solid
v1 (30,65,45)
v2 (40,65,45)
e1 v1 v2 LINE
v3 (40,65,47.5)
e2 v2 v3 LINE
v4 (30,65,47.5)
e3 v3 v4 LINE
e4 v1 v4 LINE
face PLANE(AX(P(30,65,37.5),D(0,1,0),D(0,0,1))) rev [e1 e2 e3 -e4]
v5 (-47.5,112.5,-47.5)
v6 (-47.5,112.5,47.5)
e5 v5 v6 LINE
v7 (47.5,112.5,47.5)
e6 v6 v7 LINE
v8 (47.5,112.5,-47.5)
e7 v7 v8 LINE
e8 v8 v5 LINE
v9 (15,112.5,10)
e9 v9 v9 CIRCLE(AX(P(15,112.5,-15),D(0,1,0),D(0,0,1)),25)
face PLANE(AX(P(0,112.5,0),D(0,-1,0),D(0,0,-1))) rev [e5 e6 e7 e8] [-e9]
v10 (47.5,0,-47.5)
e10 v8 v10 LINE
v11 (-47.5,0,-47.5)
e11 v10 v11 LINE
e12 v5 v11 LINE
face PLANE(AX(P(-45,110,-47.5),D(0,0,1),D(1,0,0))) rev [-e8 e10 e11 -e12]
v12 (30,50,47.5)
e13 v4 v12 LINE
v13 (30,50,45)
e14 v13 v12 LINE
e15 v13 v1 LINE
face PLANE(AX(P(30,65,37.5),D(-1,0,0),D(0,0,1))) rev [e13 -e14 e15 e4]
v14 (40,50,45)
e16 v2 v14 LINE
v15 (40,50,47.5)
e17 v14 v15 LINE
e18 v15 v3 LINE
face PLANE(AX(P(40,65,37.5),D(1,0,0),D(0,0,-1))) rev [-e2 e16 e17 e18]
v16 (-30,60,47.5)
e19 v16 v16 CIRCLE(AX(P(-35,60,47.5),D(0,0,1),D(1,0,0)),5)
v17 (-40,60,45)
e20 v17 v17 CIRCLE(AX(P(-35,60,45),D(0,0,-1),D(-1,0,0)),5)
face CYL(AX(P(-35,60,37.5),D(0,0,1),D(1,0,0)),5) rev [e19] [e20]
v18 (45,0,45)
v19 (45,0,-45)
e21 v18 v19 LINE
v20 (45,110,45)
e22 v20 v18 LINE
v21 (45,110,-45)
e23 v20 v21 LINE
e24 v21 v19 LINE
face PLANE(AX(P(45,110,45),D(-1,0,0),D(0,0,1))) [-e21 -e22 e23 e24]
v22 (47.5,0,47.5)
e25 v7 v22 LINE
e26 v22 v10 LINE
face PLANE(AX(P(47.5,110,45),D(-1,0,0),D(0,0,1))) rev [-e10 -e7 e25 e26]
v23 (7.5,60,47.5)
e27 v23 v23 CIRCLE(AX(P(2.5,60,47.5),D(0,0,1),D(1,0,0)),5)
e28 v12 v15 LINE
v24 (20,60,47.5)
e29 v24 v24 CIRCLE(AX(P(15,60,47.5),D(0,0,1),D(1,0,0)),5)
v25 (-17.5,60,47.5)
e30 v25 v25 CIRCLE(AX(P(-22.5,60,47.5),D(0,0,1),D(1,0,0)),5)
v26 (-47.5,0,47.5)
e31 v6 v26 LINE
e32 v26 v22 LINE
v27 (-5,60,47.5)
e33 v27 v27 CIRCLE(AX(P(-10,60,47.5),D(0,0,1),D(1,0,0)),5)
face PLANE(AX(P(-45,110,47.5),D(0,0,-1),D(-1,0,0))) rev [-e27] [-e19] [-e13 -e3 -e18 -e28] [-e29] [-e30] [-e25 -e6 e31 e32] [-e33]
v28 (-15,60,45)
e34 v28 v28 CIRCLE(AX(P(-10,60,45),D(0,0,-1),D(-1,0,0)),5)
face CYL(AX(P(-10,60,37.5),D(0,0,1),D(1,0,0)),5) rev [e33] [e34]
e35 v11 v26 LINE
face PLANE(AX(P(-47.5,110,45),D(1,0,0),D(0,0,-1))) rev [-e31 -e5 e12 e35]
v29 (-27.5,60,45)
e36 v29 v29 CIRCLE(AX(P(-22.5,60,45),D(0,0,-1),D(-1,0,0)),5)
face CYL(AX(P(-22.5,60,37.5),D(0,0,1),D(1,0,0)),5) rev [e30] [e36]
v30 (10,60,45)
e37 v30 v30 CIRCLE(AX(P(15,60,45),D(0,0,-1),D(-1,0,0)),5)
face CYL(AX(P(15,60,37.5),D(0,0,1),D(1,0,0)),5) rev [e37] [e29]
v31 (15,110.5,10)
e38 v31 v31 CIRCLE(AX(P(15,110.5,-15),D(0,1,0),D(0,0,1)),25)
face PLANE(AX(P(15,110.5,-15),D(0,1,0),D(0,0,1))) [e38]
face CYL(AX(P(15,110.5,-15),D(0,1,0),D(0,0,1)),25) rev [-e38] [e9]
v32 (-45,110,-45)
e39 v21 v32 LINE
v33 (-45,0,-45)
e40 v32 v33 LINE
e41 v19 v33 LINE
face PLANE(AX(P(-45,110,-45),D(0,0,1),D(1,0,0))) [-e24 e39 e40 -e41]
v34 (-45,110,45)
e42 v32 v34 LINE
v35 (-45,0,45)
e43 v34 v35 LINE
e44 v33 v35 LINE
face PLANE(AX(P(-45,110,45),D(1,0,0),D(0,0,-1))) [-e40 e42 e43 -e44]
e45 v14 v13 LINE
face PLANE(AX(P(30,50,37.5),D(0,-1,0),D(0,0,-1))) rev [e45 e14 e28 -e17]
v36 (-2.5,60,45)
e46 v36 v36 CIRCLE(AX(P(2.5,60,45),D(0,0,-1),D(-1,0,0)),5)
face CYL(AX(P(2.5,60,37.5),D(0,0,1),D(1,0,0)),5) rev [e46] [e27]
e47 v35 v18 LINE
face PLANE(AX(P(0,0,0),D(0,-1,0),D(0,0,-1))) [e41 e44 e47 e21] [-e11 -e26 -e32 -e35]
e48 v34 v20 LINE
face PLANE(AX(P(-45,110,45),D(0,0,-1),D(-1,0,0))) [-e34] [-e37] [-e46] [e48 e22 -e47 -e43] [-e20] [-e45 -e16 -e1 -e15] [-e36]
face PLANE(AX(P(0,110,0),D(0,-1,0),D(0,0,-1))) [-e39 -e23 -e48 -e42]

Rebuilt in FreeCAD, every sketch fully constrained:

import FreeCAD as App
import Part
import Sketcher

V = App.Vector
Q = App.Units.Quantity


def faces_at(feature, points):
    """Names of the faces that lie closest to the given points."""
    faces = feature.Shape.Faces
    near = lambda p: min(range(len(faces)), key=lambda i: faces[i].distToShape(Part.Vertex(*p))[0])
    return sorted({f"Face{near(p) + 1}" for p in points})

doc = App.newDocument("Part")
body = doc.addObject("PartDesign::Body", "Body")

sketch1 = doc.addObject("Sketcher::SketchObject", "Sketch")
body.addObject(sketch1)
sketch1.AttachmentSupport = (doc.XZ_Plane, [""])
sketch1.MapMode = "FlatFace"
sketch1.addGeometry([
    Part.LineSegment(V(-45, -45, 0), V(-45, 45, 0)),
    Part.LineSegment(V(-45, 45, 0), V(45, 45, 0)),
    Part.LineSegment(V(45, 45, 0), V(45, -45, 0)),
    Part.LineSegment(V(45, -45, 0), V(-45, -45, 0)),
], False)
sketch1.addConstraint([
    Sketcher.Constraint("Coincident", 0, 2, 1, 1),
    Sketcher.Constraint("Coincident", 1, 2, 2, 1),
    Sketcher.Constraint("Coincident", 2, 2, 3, 1),
    Sketcher.Constraint("Coincident", 3, 2, 0, 1),
    Sketcher.Constraint("Vertical", 0),
    Sketcher.Constraint("Horizontal", 1),
    Sketcher.Constraint("Vertical", 2),
    Sketcher.Constraint("Horizontal", 3),
    Sketcher.Constraint("Symmetric", 0, 2, 2, 2, -1, 1),
    Sketcher.Constraint("Equal", 3, 0),
    Sketcher.Constraint("DistanceX", 1, 1, 1, 2, Q("90 mm")),
])
pad1 = doc.addObject("PartDesign::Pad", "Pad")
body.addObject(pad1)
pad1.Profile = sketch1
pad1.Length = 110
pad1.Reversed = True
doc.recompute()

thickness = doc.addObject("PartDesign::Thickness", "Thickness")
body.addObject(thickness)
thickness.Base = (pad1, faces_at(pad1, [(0, 0, 0)]))
thickness.Value = 2.5
thickness.Reversed = False
thickness.Join = "Intersection"

sketch2 = doc.addObject("Sketcher::SketchObject", "Sketch001")
body.addObject(sketch2)
sketch2.AttachmentSupport = (doc.XY_Plane, [""])
sketch2.MapMode = "FlatFace"
sketch2.AttachmentOffset = App.Placement(V(0, 0, 47.5), App.Rotation())
sketch2.addGeometry([
    Part.Circle(V(-35, 60, 0), V(0, 0, 1), 5),
    Part.Circle(V(-22.5, 60, 0), V(0, 0, 1), 5),
    Part.Circle(V(-10, 60, 0), V(0, 0, 1), 5),
    Part.Circle(V(2.5, 60, 0), V(0, 0, 1), 5),
    Part.Circle(V(15, 60, 0), V(0, 0, 1), 5),
    Part.LineSegment(V(30, 65, 0), V(30, 50, 0)),
    Part.LineSegment(V(30, 50, 0), V(40, 50, 0)),
    Part.LineSegment(V(40, 50, 0), V(40, 65, 0)),
    Part.LineSegment(V(40, 65, 0), V(30, 65, 0)),
], False)
sketch2.addConstraint([
    Sketcher.Constraint("Coincident", 5, 2, 6, 1),
    Sketcher.Constraint("Coincident", 6, 2, 7, 1),
    Sketcher.Constraint("Coincident", 7, 2, 8, 1),
    Sketcher.Constraint("Coincident", 8, 2, 5, 1),
    Sketcher.Constraint("Vertical", 5),
    Sketcher.Constraint("Horizontal", 6),
    Sketcher.Constraint("Vertical", 7),
    Sketcher.Constraint("Horizontal", 8),
    Sketcher.Constraint("Equal", 0, 1),
    Sketcher.Constraint("Equal", 1, 2),
    Sketcher.Constraint("Equal", 2, 3),
    Sketcher.Constraint("Equal", 3, 4),
    Sketcher.Constraint("Horizontal", 0, 3, 1, 3),
    Sketcher.Constraint("Horizontal", 1, 3, 2, 3),
    Sketcher.Constraint("Horizontal", 2, 3, 3, 3),
    Sketcher.Constraint("Horizontal", 3, 3, 4, 3),
    Sketcher.Constraint("Diameter", 0, Q("10 mm")),
    Sketcher.Constraint("DistanceX", 6, 1, 6, 2, Q("10 mm")),
    Sketcher.Constraint("DistanceY", 5, 2, 5, 1, Q("15 mm")),
    Sketcher.Constraint("DistanceX", 0, 3, -1, 1, Q("35 mm")),
    Sketcher.Constraint("DistanceY", -1, 1, 0, 3, Q("60 mm")),
    Sketcher.Constraint("DistanceX", 2, 3, -1, 1, Q("10 mm")),
    Sketcher.Constraint("DistanceX", -1, 1, 4, 3, Q("15 mm")),
    Sketcher.Constraint("DistanceX", -1, 1, 5, 2, Q("30 mm")),
    Sketcher.Constraint("DistanceY", -1, 1, 5, 2, Q("50 mm")),
    Sketcher.Constraint("DistanceX", 1, 3, 3, 3, Q("25 mm")),
    Sketcher.Constraint("DistanceX", 1, 3, -1, 1, Q("22.5 mm")),
])
pocket1 = doc.addObject("PartDesign::Pocket", "Pocket")
body.addObject(pocket1)
pocket1.Profile = sketch2
pocket1.Length = 10

sketch3 = doc.addObject("Sketcher::SketchObject", "Sketch002")
body.addObject(sketch3)
sketch3.AttachmentSupport = (doc.XZ_Plane, [""])
sketch3.MapMode = "FlatFace"
sketch3.AttachmentOffset = App.Placement(V(0, 0, -112.5), App.Rotation())
sketch3.addGeometry(Part.Circle(V(15, -15, 0), V(0, 0, 1), 25), False)
sketch3.addConstraint([
    Sketcher.Constraint("Diameter", 0, Q("50 mm")),
    Sketcher.Constraint("DistanceX", -1, 1, 0, 3, Q("15 mm")),
    Sketcher.Constraint("DistanceY", 0, 3, -1, 1, Q("15 mm")),
])
pocket2 = doc.addObject("PartDesign::Pocket", "Pocket001")
body.addObject(pocket2)
pocket2.Profile = sketch3
pocket2.Length = 2
pocket2.Reversed = True

doc.recompute()
